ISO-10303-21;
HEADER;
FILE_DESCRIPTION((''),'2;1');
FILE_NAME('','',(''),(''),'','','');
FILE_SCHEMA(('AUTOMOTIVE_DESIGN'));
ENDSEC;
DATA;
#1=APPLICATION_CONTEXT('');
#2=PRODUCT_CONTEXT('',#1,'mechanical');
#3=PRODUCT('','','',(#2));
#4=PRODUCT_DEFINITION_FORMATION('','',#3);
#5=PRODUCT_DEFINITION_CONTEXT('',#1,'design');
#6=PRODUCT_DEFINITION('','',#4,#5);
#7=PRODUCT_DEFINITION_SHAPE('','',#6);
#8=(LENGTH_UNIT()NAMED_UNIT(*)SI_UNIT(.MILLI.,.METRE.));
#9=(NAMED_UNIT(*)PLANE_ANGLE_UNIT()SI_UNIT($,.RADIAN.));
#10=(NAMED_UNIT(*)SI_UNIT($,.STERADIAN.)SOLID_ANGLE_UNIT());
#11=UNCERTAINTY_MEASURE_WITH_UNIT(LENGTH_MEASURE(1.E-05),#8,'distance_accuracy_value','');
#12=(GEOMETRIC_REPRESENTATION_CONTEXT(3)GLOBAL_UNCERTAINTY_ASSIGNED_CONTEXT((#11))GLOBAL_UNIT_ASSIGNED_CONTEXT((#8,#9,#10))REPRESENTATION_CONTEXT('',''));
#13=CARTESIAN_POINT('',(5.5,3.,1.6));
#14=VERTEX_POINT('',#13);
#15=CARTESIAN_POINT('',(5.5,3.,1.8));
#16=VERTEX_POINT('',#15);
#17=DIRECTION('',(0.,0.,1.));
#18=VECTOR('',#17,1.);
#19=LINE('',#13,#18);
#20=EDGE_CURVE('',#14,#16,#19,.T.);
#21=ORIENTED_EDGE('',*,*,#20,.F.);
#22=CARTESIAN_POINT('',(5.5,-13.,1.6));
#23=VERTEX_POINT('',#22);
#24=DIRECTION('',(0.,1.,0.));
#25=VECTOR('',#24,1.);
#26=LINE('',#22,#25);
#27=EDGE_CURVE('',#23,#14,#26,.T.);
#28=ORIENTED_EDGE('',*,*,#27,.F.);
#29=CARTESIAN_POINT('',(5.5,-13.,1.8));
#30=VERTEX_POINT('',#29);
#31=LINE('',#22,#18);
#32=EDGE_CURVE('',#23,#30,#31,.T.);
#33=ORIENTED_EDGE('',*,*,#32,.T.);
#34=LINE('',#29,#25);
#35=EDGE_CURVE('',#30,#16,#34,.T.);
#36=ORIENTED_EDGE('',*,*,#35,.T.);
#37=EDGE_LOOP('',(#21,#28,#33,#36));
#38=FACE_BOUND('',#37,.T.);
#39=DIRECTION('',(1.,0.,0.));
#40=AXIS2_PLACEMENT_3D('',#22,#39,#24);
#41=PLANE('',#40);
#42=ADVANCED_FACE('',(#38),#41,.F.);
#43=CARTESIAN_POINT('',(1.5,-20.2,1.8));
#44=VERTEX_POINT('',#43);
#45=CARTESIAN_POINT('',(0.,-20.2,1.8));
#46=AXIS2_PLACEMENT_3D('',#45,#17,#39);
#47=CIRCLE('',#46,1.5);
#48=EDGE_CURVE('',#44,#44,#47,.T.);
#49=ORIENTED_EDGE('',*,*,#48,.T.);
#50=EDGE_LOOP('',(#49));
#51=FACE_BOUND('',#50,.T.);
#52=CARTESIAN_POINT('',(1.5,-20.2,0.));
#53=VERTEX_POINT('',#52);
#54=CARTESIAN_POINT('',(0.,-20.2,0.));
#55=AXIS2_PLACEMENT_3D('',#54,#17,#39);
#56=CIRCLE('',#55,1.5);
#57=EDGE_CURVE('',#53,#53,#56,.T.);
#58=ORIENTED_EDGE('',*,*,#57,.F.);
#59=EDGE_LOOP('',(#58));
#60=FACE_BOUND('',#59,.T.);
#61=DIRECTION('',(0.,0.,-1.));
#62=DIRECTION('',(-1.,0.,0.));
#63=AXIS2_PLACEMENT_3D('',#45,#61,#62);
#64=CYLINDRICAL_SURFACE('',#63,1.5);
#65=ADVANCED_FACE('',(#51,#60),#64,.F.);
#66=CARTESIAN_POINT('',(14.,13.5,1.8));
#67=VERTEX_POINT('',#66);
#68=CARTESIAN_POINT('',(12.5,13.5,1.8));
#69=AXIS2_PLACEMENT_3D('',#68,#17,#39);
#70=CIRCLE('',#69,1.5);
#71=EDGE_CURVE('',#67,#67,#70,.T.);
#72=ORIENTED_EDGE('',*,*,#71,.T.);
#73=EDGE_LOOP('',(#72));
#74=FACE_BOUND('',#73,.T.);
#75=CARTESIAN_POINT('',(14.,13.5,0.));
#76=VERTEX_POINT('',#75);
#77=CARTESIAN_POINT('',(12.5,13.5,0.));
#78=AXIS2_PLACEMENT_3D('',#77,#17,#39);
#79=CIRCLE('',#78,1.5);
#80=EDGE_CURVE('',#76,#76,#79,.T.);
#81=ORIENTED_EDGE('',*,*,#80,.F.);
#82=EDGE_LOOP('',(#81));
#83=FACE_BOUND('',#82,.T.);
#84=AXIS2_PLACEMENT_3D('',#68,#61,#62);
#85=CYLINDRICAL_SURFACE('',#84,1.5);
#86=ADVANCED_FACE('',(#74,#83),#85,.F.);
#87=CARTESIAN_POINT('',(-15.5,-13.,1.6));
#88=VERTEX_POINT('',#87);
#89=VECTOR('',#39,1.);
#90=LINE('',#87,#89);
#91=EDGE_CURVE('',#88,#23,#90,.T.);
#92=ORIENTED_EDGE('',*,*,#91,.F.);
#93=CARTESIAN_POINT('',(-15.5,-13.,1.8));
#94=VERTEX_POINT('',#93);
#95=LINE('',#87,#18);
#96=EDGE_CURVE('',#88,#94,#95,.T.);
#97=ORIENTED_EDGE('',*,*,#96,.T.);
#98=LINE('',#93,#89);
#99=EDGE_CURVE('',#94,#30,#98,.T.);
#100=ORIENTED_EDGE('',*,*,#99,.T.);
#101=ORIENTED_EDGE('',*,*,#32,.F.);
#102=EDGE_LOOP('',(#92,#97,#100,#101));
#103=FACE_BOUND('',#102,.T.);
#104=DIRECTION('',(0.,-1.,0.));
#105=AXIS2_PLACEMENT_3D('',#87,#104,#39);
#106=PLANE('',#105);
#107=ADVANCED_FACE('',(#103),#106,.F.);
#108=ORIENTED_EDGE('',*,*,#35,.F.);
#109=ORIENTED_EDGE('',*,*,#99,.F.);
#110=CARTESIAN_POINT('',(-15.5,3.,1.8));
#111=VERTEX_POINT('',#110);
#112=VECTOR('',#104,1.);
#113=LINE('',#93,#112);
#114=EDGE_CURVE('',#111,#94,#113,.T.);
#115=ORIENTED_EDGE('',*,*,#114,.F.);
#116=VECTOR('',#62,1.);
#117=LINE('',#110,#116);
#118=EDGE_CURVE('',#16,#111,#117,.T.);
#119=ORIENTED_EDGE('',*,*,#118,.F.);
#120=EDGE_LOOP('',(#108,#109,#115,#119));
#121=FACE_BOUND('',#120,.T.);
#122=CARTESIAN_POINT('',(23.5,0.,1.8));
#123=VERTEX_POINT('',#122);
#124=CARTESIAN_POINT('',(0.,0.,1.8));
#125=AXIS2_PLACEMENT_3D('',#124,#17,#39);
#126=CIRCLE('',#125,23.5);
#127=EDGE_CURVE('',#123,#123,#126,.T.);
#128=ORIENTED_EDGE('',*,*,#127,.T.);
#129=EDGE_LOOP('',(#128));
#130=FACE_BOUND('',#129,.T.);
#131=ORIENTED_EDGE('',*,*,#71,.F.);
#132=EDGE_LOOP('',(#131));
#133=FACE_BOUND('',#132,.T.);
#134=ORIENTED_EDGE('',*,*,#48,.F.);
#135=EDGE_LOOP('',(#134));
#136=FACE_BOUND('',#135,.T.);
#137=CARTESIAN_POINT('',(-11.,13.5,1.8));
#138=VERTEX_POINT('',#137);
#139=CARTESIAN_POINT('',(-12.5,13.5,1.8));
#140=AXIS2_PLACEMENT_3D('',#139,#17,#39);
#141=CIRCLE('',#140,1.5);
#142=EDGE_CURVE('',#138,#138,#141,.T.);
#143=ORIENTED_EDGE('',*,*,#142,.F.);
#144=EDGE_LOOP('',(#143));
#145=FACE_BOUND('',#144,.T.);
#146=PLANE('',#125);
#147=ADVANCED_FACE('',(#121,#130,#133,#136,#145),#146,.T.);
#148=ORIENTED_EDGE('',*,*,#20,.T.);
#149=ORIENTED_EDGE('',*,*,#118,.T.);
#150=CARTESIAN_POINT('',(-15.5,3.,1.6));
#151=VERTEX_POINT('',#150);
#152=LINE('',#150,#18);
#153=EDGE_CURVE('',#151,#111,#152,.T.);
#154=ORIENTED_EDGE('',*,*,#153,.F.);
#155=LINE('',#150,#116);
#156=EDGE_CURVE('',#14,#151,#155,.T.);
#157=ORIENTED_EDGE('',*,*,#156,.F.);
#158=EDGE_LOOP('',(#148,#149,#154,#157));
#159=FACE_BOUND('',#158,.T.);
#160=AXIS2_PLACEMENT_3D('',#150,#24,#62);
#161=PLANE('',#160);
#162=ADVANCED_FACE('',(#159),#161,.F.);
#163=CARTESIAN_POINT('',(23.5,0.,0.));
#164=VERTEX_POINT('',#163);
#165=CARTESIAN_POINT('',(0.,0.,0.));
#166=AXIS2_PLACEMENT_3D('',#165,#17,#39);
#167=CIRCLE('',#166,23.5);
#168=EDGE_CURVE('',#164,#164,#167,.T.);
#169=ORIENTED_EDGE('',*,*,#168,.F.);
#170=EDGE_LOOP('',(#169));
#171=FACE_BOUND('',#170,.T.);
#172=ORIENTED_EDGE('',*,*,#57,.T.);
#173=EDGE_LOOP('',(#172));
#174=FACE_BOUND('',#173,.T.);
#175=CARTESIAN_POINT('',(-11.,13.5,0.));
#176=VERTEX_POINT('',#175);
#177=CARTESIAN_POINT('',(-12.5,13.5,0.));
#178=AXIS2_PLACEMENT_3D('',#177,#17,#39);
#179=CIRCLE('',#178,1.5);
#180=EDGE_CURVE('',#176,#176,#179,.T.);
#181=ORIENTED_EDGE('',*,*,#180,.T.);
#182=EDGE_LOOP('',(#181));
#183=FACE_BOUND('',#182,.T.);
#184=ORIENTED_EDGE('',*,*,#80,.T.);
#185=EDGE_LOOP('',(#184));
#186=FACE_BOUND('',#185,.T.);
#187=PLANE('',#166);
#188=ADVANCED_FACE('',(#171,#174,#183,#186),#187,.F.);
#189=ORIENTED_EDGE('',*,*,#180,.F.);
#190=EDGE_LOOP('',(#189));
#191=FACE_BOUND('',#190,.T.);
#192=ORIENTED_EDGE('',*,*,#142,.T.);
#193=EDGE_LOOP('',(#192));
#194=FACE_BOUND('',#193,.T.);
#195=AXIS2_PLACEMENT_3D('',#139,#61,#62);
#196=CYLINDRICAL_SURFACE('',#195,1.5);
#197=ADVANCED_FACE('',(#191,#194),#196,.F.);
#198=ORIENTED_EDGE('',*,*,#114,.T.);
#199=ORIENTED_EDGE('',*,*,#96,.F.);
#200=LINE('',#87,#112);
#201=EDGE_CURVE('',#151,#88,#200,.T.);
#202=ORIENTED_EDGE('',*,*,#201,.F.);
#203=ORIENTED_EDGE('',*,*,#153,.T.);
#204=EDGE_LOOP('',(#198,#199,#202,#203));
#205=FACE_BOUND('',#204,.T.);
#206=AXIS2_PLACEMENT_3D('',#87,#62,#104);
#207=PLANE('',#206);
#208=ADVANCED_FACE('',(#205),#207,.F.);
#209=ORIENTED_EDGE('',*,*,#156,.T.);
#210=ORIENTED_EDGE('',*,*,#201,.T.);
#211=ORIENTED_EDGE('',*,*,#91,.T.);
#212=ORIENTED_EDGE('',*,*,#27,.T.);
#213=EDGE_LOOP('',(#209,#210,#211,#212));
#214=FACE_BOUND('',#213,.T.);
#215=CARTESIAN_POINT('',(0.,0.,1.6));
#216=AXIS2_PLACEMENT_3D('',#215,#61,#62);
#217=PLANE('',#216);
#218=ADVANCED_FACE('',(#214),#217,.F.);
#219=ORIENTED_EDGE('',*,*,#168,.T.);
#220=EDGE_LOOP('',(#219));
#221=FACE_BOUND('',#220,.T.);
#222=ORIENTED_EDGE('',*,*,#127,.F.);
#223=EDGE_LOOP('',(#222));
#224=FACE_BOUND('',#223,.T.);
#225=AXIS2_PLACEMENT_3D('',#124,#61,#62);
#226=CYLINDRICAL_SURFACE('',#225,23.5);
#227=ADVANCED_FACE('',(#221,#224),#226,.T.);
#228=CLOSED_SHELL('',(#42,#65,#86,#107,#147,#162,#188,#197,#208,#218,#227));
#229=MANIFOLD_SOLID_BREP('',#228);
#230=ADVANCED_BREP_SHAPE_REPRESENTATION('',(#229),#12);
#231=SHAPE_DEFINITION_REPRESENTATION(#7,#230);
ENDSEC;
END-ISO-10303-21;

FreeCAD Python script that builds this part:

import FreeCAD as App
import Part
import Sketcher

V = App.Vector
Q = App.Units.Quantity


def add_polygon(sketch, points):
    """Adds a closed chain of lines whose ends are joined by coincident constraints."""
    first, n = sketch.GeometryCount, len(points)
    for a, b in zip(points, points[1:] + points[:1]):
        sketch.addGeometry(Part.LineSegment(App.Vector(*a, 0), App.Vector(*b, 0)), False)
    for i in range(n):
        sketch.addConstraint(Sketcher.Constraint("Coincident", first + i, 2, first + (i + 1) % n, 1))

doc = App.newDocument("Part")
body = doc.addObject("PartDesign::Body", "Body")

sketch1 = body.newObject("Sketcher::SketchObject", "Sketch")
sketch1.AttachmentSupport = (doc.getObject("XY_Plane"), [""])
sketch1.MapMode = "FlatFace"
sketch1.addGeometry([
    Part.Circle(V(0, 0, 0), V(0, 0, 1), 23.5),
    Part.Circle(V(0, -20.2, 0), V(0, 0, 1), 1.5),
    Part.Circle(V(-12.5, 13.5, 0), V(0, 0, 1), 1.5),
    Part.Circle(V(12.5, 13.5, 0), V(0, 0, 1), 1.5),
], False)
sketch1.addConstraint([
    Sketcher.Constraint("Coincident", 0, 3, -1, 1),
    Sketcher.Constraint("Equal", 1, 2),
    Sketcher.Constraint("Equal", 2, 3),
    Sketcher.Constraint("Symmetric", 2, 3, 3, 3, -2),
    Sketcher.Constraint("PointOnObject", 1, 3, -2),
    Sketcher.Constraint("Diameter", 0, Q("47 mm")),
    Sketcher.Constraint("Diameter", 1, Q("3 mm")),
    Sketcher.Constraint("DistanceX", 2, 3, 3, 3, Q("25 mm")),
    Sketcher.Constraint("DistanceY", 1, 3, -1, 1, Q("20.2 mm")),
    Sketcher.Constraint("DistanceY", -1, 1, 2, 3, Q("13.5 mm")),
])
pad1 = body.newObject("PartDesign::Pad", "Pad")
pad1.Profile = sketch1
pad1.Length = 1.8

sketch2 = body.newObject("Sketcher::SketchObject", "Sketch001")
sketch2.AttachmentSupport = (doc.getObject("XY_Plane"), [""])
sketch2.MapMode = "FlatFace"
sketch2.AttachmentOffset = App.Placement(V(0, 0, 1.8), App.Rotation())
add_polygon(sketch2, [(-16, 3), (-16, -13), (6, -13), (6, 3)])
sketch2.addConstraint([
    Sketcher.Constraint("Vertical", 0),
    Sketcher.Constraint("Horizontal", 1),
    Sketcher.Constraint("Vertical", 2),
    Sketcher.Constraint("Horizontal", 3),
    Sketcher.Constraint("DistanceX", 1, 1, 1, 2, Q("21 mm")),
    Sketcher.Constraint("DistanceY", 0, 2, 0, 1, Q("16 mm")),
    Sketcher.Constraint("DistanceY", 0, 2, -1, 1, Q("13 mm")),
    Sketcher.Constraint("DistanceX", 0, 2, -1, 1, Q("15.5 mm")),
])
pocket1 = body.newObject("PartDesign::Pocket", "Pocket")
pocket1.Profile = sketch2
pocket1.Length = 0.2

doc.recompute()
